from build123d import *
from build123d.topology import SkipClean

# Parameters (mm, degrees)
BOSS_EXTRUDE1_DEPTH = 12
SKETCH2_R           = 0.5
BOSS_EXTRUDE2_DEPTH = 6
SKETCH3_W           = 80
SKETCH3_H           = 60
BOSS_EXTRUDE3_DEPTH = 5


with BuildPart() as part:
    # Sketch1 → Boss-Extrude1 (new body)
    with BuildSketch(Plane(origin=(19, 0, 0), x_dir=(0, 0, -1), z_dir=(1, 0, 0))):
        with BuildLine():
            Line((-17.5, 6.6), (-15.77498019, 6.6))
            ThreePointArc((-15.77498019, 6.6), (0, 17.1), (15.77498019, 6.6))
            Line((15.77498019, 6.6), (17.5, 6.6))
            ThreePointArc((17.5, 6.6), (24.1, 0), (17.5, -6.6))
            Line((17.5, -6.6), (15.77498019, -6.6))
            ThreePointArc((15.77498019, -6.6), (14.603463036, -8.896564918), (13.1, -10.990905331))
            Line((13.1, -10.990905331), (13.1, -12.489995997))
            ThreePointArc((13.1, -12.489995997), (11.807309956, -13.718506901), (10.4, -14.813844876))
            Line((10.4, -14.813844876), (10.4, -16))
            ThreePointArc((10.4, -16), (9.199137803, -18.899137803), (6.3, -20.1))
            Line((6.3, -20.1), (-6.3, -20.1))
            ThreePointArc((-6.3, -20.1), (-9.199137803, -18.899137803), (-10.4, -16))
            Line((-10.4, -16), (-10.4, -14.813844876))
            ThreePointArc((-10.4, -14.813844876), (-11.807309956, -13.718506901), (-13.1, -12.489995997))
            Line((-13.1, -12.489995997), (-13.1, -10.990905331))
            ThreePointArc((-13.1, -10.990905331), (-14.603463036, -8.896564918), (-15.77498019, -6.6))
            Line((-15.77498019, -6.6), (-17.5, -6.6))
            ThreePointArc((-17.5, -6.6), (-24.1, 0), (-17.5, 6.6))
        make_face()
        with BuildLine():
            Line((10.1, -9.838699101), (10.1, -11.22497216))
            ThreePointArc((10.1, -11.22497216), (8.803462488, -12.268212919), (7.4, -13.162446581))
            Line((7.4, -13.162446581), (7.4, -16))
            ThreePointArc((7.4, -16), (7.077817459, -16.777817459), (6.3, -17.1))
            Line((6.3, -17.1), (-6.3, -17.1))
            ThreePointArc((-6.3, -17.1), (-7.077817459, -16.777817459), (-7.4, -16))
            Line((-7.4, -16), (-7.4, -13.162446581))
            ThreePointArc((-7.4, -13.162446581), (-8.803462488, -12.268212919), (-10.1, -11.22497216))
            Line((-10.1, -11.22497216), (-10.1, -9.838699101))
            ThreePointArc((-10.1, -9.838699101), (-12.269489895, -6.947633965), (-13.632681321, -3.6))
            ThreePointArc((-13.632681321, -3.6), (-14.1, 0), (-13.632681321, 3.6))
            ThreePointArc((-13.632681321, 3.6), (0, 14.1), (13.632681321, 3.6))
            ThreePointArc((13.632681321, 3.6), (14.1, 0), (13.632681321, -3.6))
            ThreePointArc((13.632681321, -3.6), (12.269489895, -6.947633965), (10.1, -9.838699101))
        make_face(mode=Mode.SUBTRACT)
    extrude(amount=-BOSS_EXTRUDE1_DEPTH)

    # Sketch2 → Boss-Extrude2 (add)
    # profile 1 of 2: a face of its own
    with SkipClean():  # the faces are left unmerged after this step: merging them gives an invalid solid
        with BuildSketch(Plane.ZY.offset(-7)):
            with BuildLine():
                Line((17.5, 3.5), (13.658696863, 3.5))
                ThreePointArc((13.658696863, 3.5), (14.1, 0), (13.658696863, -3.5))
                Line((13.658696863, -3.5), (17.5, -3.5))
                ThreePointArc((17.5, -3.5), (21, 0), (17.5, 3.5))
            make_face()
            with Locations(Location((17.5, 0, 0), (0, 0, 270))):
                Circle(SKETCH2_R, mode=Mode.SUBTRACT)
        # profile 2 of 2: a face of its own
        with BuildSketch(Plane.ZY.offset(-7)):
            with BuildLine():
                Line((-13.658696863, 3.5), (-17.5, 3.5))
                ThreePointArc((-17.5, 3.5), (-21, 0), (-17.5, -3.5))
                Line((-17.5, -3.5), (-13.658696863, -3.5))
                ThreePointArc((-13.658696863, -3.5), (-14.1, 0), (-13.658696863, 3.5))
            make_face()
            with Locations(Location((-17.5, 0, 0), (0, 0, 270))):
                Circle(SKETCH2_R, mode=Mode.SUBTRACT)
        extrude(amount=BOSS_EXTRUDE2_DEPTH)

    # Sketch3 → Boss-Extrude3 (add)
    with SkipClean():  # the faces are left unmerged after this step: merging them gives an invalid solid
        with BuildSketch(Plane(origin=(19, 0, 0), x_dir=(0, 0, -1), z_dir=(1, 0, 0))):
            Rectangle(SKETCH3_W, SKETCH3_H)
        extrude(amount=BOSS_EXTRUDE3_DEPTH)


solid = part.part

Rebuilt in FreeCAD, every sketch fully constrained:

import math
import FreeCAD as App
import Part
import Sketcher
from FreeCAD import Vector
Q = App.Units.Quantity

doc = App.newDocument("Part")
body = doc.addObject("PartDesign::Body", "Body")

# Sketch on YZ plane
sketch1 = body.newObject("Sketcher::SketchObject", "Sketch")
sketch1.AttachmentSupport = (doc.getObject("YZ_Plane"), [""])
sketch1.MapMode = "FlatFace"
sketch1.AttachmentOffset = App.Placement(Vector(0, 0, 19), App.Rotation())
sketch1.addGeometry([
    Part.LineSegment(Vector(6.6, 15.8, 0), Vector(6.6, 17.5, 0)),  # 0
    Part.ArcOfCircle(Part.Circle(Vector(0, 17.5, 0), Vector(0, 0, 1), 6.6), math.radians(0), math.radians(180)),  # 1
    Part.LineSegment(Vector(-6.6, 17.5, 0), Vector(-6.6, 15.8, 0)),  # 2
    Part.ArcOfCircle(Part.Circle(Vector(0, 0, 0), Vector(0, 0, 1), 17.1), math.radians(112.7), math.radians(130)),  # 3
    Part.LineSegment(Vector(-11, 13.1, 0), Vector(-12.5, 13.1, 0)),  # 4
    Part.ArcOfCircle(Part.Circle(Vector(0, 0, 0), Vector(0, 0, 1), 18.1), math.radians(133.63), math.radians(144.93)),  # 5
    Part.LineSegment(Vector(-14.8, 10.4, 0), Vector(-16, 10.4, 0)),  # 6
    Part.ArcOfCircle(Part.Circle(Vector(-16, 6.3, 0), Vector(0, 0, 1), 4.1), math.radians(90), math.radians(180)),  # 7
    Part.LineSegment(Vector(-20.1, 6.3, 0), Vector(-20.1, -6.3, 0)),  # 8
    Part.ArcOfCircle(Part.Circle(Vector(-16, -6.3, 0), Vector(0, 0, 1), 4.1), math.radians(180), math.radians(270)),  # 9
    Part.LineSegment(Vector(-16, -10.4, 0), Vector(-14.8, -10.4, 0)),  # 10
    Part.ArcOfCircle(Part.Circle(Vector(0, 0, 0), Vector(0, 0, 1), 18.1), math.radians(-144.93), math.radians(-133.63)),  # 11
    Part.LineSegment(Vector(-12.5, -13.1, 0), Vector(-11, -13.1, 0)),  # 12
    Part.ArcOfCircle(Part.Circle(Vector(0, 0, 0), Vector(0, 0, 1), 17.1), math.radians(-130), math.radians(-112.7)),  # 13
    Part.LineSegment(Vector(-6.6, -15.8, 0), Vector(-6.6, -17.5, 0)),  # 14
    Part.ArcOfCircle(Part.Circle(Vector(0, -17.5, 0), Vector(0, 0, 1), 6.6), math.radians(180), math.radians(360)),  # 15
    Part.LineSegment(Vector(6.6, -17.5, 0), Vector(6.6, -15.8, 0)),  # 16
    Part.ArcOfCircle(Part.Circle(Vector(0, 0, 0), Vector(0, 0, 1), 17.1), math.radians(-67), math.radians(67)),  # 17
    Part.LineSegment(Vector(-9.8, -10.1, 0), Vector(-11.2, -10.1, 0)),  # 18
    Part.ArcOfCircle(Part.Circle(Vector(0, 0, 0), Vector(0, 0, 1), 15.1), math.radians(-150.66), math.radians(-138.02)),  # 19
    Part.LineSegment(Vector(-13.2, -7.4, 0), Vector(-16, -7.4, 0)),  # 20
    Part.ArcOfCircle(Part.Circle(Vector(-16, -6.3, 0), Vector(0, 0, 1), 1.1), math.radians(-180), math.radians(-90)),  # 21
    Part.LineSegment(Vector(-17.1, -6.3, 0), Vector(-17.1, 6.3, 0)),  # 22
    Part.ArcOfCircle(Part.Circle(Vector(-16, 6.3, 0), Vector(0, 0, 1), 1.1), math.radians(90), math.radians(180)),  # 23
    Part.LineSegment(Vector(-16, 7.4, 0), Vector(-13.2, 7.4, 0)),  # 24
    Part.ArcOfCircle(Part.Circle(Vector(0, 0, 0), Vector(0, 0, 1), 15.1), math.radians(138.02), math.radians(150.66)),  # 25
    Part.LineSegment(Vector(-11.2, 10.1, 0), Vector(-9.8, 10.1, 0)),  # 26
    Part.ArcOfCircle(Part.Circle(Vector(0, 0, 0), Vector(0, 0, 1), 14.1), math.radians(105), math.radians(134)),  # 27
    Part.ArcOfCircle(Part.Circle(Vector(0, 0, 0), Vector(0, 0, 1), 14.1), math.radians(75), math.radians(105)),  # 28
    Part.ArcOfCircle(Part.Circle(Vector(0, 0, 0), Vector(0, 0, 1), 14.1), math.radians(-75), math.radians(75)),  # 29
    Part.ArcOfCircle(Part.Circle(Vector(0, 0, 0), Vector(0, 0, 1), 14.1), math.radians(-105), math.radians(-75)),  # 30
    Part.ArcOfCircle(Part.Circle(Vector(0, 0, 0), Vector(0, 0, 1), 14.1), math.radians(-134), math.radians(-105)),  # 31
], False)
sketch1.addConstraint([
    Sketcher.Constraint("Tangent", 0, 2, 1, 1),
    Sketcher.Constraint("Tangent", 1, 2, 2, 1),
    Sketcher.Constraint("Coincident", 2, 2, 3, 1),
    Sketcher.Constraint("Coincident", 3, 2, 4, 1),
    Sketcher.Constraint("Coincident", 4, 2, 5, 1),
    Sketcher.Constraint("Coincident", 5, 2, 6, 1),
    Sketcher.Constraint("Tangent", 6, 2, 7, 1),
    Sketcher.Constraint("Tangent", 7, 2, 8, 1),
    Sketcher.Constraint("Tangent", 8, 2, 9, 1),
    Sketcher.Constraint("Tangent", 9, 2, 10, 1),
    Sketcher.Constraint("Coincident", 10, 2, 11, 1),
    Sketcher.Constraint("Coincident", 11, 2, 12, 1),
    Sketcher.Constraint("Coincident", 12, 2, 13, 1),
    Sketcher.Constraint("Coincident", 13, 2, 14, 1),
    Sketcher.Constraint("Tangent", 14, 2, 15, 1),
    Sketcher.Constraint("Tangent", 15, 2, 16, 1),
    Sketcher.Constraint("Coincident", 16, 2, 17, 1),
    Sketcher.Constraint("Coincident", 17, 2, 0, 1),
    Sketcher.Constraint("Coincident", 18, 2, 19, 2),
    Sketcher.Constraint("Coincident", 19, 1, 20, 1),
    Sketcher.Constraint("Tangent", 20, 2, 21, 2),
    Sketcher.Constraint("Tangent", 21, 1, 22, 1),
    Sketcher.Constraint("Tangent", 22, 2, 23, 2),
    Sketcher.Constraint("Tangent", 23, 1, 24, 1),
    Sketcher.Constraint("Coincident", 24, 2, 25, 2),
    Sketcher.Constraint("Coincident", 25, 1, 26, 1),
    Sketcher.Constraint("Coincident", 26, 2, 27, 2),
    Sketcher.Constraint("Tangent", 27, 1, 28, 2),
    Sketcher.Constraint("Tangent", 28, 1, 29, 2),
    Sketcher.Constraint("Tangent", 29, 1, 30, 2),
    Sketcher.Constraint("Tangent", 30, 1, 31, 2),
    Sketcher.Constraint("Coincident", 31, 1, 18, 1),
    Sketcher.Constraint("Vertical", 0),
    Sketcher.Constraint("Vertical", 2),
    Sketcher.Constraint("Horizontal", 4),
    Sketcher.Constraint("Horizontal", 6),
    Sketcher.Constraint("Vertical", 8),
    Sketcher.Constraint("Horizontal", 10),
    Sketcher.Constraint("Horizontal", 12),
    Sketcher.Constraint("Vertical", 14),
    Sketcher.Constraint("Vertical", 16),
    Sketcher.Constraint("Horizontal", 18),
    Sketcher.Constraint("Horizontal", 20),
    Sketcher.Constraint("Vertical", 22),
    Sketcher.Constraint("Horizontal", 24),
    Sketcher.Constraint("Horizontal", 26),
    Sketcher.Constraint("Coincident", 3, 3, -1, 1),
    Sketcher.Constraint("Coincident", 5, 3, -1, 1),
    Sketcher.Constraint("Coincident", 11, 3, -1, 1),
    Sketcher.Constraint("Coincident", 13, 3, -1, 1),
    Sketcher.Constraint("Coincident", 17, 3, -1, 1),
    Sketcher.Constraint("Coincident", 19, 3, -1, 1),
    Sketcher.Constraint("Coincident", 25, 3, -1, 1),
    Sketcher.Constraint("Coincident", 27, 3, -1, 1),
    Sketcher.Constraint("Coincident", 29, 3, -1, 1),
    Sketcher.Constraint("Coincident", 31, 3, -1, 1),
    Sketcher.Constraint("Coincident", 21, 3, 9, 3),
    Sketcher.Constraint("Coincident", 23, 3, 7, 3),
    Sketcher.Constraint("Equal", 7, 9),
    Sketcher.Constraint("Equal", 5, 11),
    Sketcher.Constraint("Equal", 3, 13),
    Sketcher.Constraint("Equal", 1, 15),
    Sketcher.Constraint("Equal", 13, 17),
    Sketcher.Constraint("Equal", 19, 25),
    Sketcher.Constraint("Symmetric", 1, 3, 15, 3, -1, 1),
    Sketcher.Constraint("PointOnObject", 1, 3, -2),
    Sketcher.Constraint("Horizontal", 27, 1, 28, 1),
    Sketcher.Constraint("Horizontal", 29, 1, 30, 1),
    Sketcher.Constraint("Vertical", 5, 2, 10, 2),
    Sketcher.Constraint("Vertical", 4, 2, 11, 2),
    Sketcher.Constraint("Vertical", 18, 2, 25, 1),
    Sketcher.Constraint("Vertical", 28, 1, 29, 1),
    Sketcher.Constraint("Radius", 1, Q("6.6 mm")),
    Sketcher.Constraint("Radius", 3, Q("17.1 mm")),
    Sketcher.Constraint("Radius", 5, Q("18.1 mm")),
    Sketcher.Constraint("Radius", 7, Q("4.1 mm")),
    Sketcher.Constraint("Radius", 19, Q("15.1 mm")),
    Sketcher.Constraint("Radius", 21, Q("1.1 mm")),
    Sketcher.Constraint("Radius", 27, Q("14.1 mm")),
    Sketcher.Constraint("DistanceY", 8, 2, 8, 1, Q("12.6 mm")),
    Sketcher.Constraint("DistanceX", 7, 3, -1, 1, Q("16 mm")),
    Sketcher.Constraint("DistanceY", 12, 2, 18, 2, Q("3 mm")),
    Sketcher.Constraint("DistanceX", 2, 2, 27, 1, Q("3 mm")),
    Sketcher.Constraint("DistanceY", -1, 1, 1, 3, Q("17.5 mm")),
    Sketcher.Constraint("DistanceY", -1, 1, 3, 2, Q("13.1 mm")),
])
pad1 = body.newObject("PartDesign::Pad", "Pad")
pad1.Profile = sketch1
pad1.Length = 12
pad1.Reversed = True

# Sketch on YZ plane
sketch2 = body.newObject("Sketcher::SketchObject", "Sketch001")
sketch2.AttachmentSupport = (doc.getObject("YZ_Plane"), [""])
sketch2.MapMode = "FlatFace"
sketch2.AttachmentOffset = App.Placement(Vector(0, 0, 7), App.Rotation())
sketch2.addGeometry([
    Part.LineSegment(Vector(3.5, 17.5, 0), Vector(3.5, 13.7, 0)),  # 0
    Part.ArcOfCircle(Part.Circle(Vector(0, 0, 0), Vector(0, 0, 1), 14.1), math.radians(76), math.radians(104)),  # 1
    Part.LineSegment(Vector(-3.5, 13.7, 0), Vector(-3.5, 17.5, 0)),  # 2
    Part.ArcOfCircle(Part.Circle(Vector(0, 17.5, 0), Vector(0, 0, 1), 3.5), math.radians(0), math.radians(180)),  # 3
    Part.Circle(Vector(0, 17.5, 0), Vector(0, 0, 1), 0.5),  # 4
    Part.LineSegment(Vector(3.5, -13.7, 0), Vector(3.5, -17.5, 0)),  # 5
    Part.ArcOfCircle(Part.Circle(Vector(0, -17.5, 0), Vector(0, 0, 1), 3.5), math.radians(180), math.radians(360)),  # 6
    Part.LineSegment(Vector(-3.5, -17.5, 0), Vector(-3.5, -13.7, 0)),  # 7
    Part.ArcOfCircle(Part.Circle(Vector(0, 0, 0), Vector(0, 0, 1), 14.1), math.radians(-104), math.radians(-76)),  # 8
    Part.Circle(Vector(0, -17.5, 0), Vector(0, 0, 1), 0.5),  # 9
], False)
sketch2.addConstraint([
    Sketcher.Constraint("Coincident", 0, 2, 1, 1),
    Sketcher.Constraint("Coincident", 1, 2, 2, 1),
    Sketcher.Constraint("Tangent", 2, 2, 3, 2),
    Sketcher.Constraint("Tangent", 3, 1, 0, 1),
    Sketcher.Constraint("Tangent", 5, 2, 6, 2),
    Sketcher.Constraint("Tangent", 6, 1, 7, 1),
    Sketcher.Constraint("Coincident", 7, 2, 8, 1),
    Sketcher.Constraint("Coincident", 8, 2, 5, 1),
    Sketcher.Constraint("Vertical", 0),
    Sketcher.Constraint("Vertical", 2),
    Sketcher.Constraint("Vertical", 5),
    Sketcher.Constraint("Vertical", 7),
    Sketcher.Constraint("Coincident", 1, 3, -1, 1),
    Sketcher.Constraint("Coincident", 8, 3, -1, 1),
    Sketcher.Constraint("Coincident", 4, 3, 3, 3),
    Sketcher.Constraint("Coincident", 9, 3, 6, 3),
    Sketcher.Constraint("Equal", 3, 6),
    Sketcher.Constraint("Equal", 1, 8),
    Sketcher.Constraint("Equal", 4, 9),
    Sketcher.Constraint("Symmetric", 3, 3, 6, 3, -1, 1),
    Sketcher.Constraint("PointOnObject", 3, 3, -2),
    Sketcher.Constraint("Diameter", 4, Q("1 mm")),
    Sketcher.Constraint("Radius", 1, Q("14.1 mm")),
    Sketcher.Constraint("Radius", 3, Q("3.5 mm")),
    Sketcher.Constraint("DistanceY", 6, 3, 3, 3, Q("35 mm")),
])
pad2 = body.newObject("PartDesign::Pad", "Pad001")
pad2.Profile = sketch2
pad2.Length = 6
pad2.Reversed = True

# Sketch on YZ plane
sketch3 = body.newObject("Sketcher::SketchObject", "Sketch002")
sketch3.AttachmentSupport = (doc.getObject("YZ_Plane"), [""])
sketch3.MapMode = "FlatFace"
sketch3.AttachmentOffset = App.Placement(Vector(0, 0, 19), App.Rotation())
sketch3.addGeometry([
    Part.LineSegment(Vector(30, 40, 0), Vector(-30, 40, 0)),
    Part.LineSegment(Vector(-30, 40, 0), Vector(-30, -40, 0)),
    Part.LineSegment(Vector(-30, -40, 0), Vector(30, -40, 0)),
    Part.LineSegment(Vector(30, -40, 0), Vector(30, 40, 0)),
], False)
sketch3.addConstraint([
    Sketcher.Constraint("Coincident", 0, 2, 1, 1),
    Sketcher.Constraint("Coincident", 1, 2, 2, 1),
    Sketcher.Constraint("Coincident", 2, 2, 3, 1),
    Sketcher.Constraint("Coincident", 3, 2, 0, 1),
    Sketcher.Constraint("Horizontal", 0),
    Sketcher.Constraint("Vertical", 1),
    Sketcher.Constraint("Horizontal", 2),
    Sketcher.Constraint("Vertical", 3),
    Sketcher.Constraint("Symmetric", 0, 2, 2, 2, -1, 1),
    Sketcher.Constraint("DistanceX", 0, 2, 0, 1, Q("60 mm")),
    Sketcher.Constraint("DistanceY", 1, 2, 1, 1, Q("80 mm")),
])
pad3 = body.newObject("PartDesign::Pad", "Pad002")
pad3.Profile = sketch3
pad3.Length = 5

doc.recompute()
